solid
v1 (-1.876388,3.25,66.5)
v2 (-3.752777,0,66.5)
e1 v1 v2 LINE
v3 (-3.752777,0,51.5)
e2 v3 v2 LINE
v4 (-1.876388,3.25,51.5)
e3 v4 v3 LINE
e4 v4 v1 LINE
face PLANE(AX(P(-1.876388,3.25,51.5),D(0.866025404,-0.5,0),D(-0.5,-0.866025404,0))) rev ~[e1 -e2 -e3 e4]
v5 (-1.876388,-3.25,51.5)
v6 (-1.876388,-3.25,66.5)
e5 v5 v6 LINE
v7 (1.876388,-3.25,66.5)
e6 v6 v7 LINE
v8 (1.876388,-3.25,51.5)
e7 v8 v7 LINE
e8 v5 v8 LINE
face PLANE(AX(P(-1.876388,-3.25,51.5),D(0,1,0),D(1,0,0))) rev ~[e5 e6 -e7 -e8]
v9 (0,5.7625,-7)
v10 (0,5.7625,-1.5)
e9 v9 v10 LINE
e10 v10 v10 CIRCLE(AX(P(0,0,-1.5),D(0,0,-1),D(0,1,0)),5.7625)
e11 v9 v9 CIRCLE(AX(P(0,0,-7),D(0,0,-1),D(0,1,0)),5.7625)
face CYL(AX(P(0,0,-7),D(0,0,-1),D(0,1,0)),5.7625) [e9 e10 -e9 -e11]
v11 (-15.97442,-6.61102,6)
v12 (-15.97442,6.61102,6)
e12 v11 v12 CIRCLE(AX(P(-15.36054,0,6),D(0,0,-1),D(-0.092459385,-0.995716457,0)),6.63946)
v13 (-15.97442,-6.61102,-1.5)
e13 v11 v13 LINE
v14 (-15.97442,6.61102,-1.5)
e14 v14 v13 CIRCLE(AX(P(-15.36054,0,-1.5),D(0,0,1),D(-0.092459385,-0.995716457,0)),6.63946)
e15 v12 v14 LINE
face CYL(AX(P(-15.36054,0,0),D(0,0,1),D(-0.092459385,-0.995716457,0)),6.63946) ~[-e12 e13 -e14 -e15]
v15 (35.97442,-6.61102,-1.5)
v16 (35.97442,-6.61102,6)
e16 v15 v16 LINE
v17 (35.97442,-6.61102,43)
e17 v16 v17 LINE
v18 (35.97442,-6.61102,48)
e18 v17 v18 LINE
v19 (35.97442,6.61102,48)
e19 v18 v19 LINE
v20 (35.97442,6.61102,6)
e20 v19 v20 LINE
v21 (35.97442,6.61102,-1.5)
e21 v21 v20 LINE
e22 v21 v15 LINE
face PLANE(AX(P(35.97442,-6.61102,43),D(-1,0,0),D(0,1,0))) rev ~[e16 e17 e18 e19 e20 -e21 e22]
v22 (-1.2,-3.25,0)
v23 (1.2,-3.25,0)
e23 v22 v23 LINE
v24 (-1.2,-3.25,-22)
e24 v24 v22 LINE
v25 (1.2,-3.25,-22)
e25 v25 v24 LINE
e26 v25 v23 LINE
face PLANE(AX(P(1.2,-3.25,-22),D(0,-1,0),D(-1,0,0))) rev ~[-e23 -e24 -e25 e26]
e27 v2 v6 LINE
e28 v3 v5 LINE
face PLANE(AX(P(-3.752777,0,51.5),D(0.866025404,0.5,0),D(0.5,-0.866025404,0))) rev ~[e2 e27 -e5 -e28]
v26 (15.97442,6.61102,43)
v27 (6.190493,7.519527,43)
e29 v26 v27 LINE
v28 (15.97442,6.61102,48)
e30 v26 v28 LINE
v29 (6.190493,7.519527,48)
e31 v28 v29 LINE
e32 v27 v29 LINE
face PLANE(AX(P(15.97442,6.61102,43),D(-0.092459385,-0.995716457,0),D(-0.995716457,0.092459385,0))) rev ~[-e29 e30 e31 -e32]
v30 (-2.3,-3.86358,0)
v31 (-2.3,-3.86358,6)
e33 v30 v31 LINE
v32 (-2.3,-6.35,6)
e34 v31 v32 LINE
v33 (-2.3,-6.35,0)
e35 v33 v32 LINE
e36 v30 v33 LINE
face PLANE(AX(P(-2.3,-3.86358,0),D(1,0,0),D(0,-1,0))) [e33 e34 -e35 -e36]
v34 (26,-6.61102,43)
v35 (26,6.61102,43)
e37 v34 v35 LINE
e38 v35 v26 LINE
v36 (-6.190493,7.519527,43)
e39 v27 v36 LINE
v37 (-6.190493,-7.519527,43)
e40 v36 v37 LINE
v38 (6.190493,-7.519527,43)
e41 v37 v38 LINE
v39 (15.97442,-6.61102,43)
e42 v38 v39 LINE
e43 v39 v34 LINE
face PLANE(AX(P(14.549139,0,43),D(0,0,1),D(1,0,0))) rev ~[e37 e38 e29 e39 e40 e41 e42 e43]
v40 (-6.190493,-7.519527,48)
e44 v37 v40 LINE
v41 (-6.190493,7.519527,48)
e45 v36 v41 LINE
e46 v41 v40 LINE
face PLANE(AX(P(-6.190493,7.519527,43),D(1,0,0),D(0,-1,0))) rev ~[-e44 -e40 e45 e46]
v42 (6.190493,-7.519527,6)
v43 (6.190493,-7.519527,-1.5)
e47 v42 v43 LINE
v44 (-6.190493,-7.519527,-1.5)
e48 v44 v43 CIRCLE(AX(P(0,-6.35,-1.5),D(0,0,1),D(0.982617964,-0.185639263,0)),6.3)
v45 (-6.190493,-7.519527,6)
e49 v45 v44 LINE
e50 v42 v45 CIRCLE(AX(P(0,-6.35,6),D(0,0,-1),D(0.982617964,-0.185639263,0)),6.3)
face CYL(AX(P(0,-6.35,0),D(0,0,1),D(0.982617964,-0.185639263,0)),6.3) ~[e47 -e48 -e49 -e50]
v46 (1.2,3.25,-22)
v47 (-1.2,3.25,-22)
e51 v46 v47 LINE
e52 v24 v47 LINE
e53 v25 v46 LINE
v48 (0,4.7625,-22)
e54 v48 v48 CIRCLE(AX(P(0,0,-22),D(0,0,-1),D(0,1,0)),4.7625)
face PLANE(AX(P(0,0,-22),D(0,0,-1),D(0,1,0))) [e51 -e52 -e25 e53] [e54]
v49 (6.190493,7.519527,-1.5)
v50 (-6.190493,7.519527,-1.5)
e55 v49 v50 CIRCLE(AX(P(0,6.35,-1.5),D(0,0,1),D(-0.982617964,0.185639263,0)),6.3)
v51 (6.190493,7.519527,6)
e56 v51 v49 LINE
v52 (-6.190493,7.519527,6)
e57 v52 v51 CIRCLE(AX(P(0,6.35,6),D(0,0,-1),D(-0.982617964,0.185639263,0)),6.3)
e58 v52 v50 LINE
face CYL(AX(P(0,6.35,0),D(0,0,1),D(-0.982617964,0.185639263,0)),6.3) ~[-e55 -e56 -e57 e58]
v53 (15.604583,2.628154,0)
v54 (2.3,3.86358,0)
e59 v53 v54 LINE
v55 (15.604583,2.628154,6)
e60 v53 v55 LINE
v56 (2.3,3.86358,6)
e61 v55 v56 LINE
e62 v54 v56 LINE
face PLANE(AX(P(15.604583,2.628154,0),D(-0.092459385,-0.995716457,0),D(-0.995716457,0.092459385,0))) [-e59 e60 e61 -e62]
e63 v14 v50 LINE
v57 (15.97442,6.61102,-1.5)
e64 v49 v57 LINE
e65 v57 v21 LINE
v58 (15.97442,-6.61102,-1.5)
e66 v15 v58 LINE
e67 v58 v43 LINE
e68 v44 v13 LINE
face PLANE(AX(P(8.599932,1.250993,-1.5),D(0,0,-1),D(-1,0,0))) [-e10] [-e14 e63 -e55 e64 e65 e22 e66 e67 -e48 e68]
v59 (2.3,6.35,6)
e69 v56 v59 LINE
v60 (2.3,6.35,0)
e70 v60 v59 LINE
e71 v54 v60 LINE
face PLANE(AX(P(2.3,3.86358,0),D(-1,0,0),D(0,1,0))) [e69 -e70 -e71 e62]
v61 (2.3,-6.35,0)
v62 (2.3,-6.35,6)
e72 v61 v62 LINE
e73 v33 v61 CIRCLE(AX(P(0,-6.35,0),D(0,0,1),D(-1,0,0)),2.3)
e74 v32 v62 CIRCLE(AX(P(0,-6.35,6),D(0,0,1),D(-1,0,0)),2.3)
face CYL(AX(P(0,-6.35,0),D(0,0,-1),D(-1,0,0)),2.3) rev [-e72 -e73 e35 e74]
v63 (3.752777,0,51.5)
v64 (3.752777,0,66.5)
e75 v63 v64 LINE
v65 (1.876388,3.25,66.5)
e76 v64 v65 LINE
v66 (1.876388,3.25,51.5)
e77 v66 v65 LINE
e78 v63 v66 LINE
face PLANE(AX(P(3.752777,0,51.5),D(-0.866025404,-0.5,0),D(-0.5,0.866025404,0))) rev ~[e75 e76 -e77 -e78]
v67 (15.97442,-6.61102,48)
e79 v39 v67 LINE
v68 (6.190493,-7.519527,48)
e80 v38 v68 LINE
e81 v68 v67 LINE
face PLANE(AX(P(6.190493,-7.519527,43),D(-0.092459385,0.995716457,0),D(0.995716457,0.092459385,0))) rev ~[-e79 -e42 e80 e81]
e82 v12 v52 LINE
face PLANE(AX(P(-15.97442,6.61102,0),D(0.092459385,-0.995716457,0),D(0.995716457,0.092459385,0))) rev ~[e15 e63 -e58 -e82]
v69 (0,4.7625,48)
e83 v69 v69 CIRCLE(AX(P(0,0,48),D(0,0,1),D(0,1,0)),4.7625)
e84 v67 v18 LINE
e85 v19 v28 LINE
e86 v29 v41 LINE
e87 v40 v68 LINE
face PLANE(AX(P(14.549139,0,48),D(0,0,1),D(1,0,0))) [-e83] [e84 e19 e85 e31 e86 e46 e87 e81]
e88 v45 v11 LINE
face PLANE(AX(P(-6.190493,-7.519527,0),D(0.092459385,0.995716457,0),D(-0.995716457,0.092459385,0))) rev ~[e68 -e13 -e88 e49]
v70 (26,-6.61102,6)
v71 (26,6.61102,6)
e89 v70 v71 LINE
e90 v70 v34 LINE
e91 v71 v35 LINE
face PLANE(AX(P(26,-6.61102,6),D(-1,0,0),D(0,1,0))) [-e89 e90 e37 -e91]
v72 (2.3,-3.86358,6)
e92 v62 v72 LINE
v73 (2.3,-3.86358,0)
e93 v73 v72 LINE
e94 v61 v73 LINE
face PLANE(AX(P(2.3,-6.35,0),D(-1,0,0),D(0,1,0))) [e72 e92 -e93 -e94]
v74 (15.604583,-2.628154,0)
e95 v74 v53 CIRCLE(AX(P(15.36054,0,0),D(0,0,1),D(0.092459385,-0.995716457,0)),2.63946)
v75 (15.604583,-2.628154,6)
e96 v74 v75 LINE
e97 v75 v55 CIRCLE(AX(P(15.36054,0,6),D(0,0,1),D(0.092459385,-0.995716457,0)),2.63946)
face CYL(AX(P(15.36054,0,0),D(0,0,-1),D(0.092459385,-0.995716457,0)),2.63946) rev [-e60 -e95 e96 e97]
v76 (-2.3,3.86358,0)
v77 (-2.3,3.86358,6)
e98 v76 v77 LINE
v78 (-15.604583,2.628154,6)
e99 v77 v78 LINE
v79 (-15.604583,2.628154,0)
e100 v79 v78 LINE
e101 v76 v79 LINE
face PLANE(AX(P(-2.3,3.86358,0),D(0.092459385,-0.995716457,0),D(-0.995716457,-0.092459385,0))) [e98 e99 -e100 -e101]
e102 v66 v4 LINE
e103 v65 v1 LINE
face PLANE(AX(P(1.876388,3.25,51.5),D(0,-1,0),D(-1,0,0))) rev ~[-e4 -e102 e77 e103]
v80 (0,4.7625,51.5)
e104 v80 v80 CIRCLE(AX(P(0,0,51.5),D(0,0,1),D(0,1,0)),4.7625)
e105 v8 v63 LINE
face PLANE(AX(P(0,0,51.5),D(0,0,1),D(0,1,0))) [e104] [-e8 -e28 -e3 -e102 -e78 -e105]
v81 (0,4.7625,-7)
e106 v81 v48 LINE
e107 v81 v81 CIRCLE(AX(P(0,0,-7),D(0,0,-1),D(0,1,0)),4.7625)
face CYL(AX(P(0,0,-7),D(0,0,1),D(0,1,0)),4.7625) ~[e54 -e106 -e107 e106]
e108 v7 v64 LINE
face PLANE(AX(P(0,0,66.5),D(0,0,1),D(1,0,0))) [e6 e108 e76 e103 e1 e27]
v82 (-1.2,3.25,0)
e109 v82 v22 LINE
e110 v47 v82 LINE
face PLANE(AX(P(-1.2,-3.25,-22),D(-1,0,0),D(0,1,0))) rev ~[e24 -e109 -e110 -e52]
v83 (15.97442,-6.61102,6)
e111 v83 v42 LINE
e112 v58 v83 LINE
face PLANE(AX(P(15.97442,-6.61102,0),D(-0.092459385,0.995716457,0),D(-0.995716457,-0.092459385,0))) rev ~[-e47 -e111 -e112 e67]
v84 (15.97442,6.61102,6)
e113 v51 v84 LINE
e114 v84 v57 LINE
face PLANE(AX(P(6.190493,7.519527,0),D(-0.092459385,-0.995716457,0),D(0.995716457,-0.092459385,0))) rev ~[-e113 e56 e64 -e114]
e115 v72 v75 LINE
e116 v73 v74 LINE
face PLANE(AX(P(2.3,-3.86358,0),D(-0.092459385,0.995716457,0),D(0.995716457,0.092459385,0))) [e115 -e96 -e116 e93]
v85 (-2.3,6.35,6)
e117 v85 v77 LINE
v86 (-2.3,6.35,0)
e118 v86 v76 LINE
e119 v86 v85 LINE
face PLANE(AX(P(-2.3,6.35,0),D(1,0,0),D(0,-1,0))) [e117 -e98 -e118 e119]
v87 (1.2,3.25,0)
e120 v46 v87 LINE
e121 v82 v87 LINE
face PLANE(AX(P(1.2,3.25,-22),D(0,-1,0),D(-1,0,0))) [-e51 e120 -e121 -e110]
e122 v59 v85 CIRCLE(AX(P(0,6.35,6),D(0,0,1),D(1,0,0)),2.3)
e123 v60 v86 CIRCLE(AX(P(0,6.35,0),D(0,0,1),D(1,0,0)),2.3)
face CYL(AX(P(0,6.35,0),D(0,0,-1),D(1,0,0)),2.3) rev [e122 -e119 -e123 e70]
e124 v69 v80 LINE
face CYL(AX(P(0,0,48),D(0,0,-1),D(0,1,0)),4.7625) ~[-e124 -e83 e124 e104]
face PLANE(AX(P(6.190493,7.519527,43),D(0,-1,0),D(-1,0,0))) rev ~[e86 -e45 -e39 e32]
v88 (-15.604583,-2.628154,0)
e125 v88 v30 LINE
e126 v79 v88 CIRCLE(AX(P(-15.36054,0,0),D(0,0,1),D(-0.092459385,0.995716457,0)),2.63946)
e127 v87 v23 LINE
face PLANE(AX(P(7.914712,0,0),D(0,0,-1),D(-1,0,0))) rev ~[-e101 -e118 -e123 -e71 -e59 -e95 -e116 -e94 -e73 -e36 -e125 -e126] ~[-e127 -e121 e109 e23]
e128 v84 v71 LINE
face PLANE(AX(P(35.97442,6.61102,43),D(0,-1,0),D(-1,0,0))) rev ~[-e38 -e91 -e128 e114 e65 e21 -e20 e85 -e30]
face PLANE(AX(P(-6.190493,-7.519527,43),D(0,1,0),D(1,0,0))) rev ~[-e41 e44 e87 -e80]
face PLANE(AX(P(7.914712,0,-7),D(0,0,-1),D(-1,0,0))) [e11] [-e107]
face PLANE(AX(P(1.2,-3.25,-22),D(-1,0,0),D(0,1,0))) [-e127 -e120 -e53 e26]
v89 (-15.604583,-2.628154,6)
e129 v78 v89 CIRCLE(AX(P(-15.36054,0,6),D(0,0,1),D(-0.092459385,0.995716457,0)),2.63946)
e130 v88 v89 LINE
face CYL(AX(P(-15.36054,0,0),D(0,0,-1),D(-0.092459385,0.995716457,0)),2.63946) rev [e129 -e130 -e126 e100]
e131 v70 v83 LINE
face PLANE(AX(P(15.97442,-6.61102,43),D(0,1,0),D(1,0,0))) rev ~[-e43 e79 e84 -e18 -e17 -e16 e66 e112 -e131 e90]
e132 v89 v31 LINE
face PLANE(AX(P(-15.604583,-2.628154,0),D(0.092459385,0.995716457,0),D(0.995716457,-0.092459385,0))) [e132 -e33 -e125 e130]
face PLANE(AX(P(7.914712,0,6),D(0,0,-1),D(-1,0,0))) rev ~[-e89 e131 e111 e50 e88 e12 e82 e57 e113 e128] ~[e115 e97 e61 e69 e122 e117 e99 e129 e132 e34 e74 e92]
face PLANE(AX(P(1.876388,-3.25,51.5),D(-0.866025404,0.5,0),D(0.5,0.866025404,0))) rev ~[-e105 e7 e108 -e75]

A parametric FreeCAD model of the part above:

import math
import FreeCAD as App
import Part
import Sketcher
from FreeCAD import Vector
Q = App.Units.Quantity

doc = App.newDocument("Part")
body = doc.addObject("PartDesign::Body", "Body")

# Sketch on XY plane
sketch1 = doc.addObject("Sketcher::SketchObject", "Sketch")
body.addObject(sketch1)
sketch1.AttachmentSupport = (doc.XY_Plane, [""])
sketch1.MapMode = "FlatFace"
sketch1.addGeometry(Part.LineSegment(Vector(35.97442, 6.61102, 0), Vector(15.97442, 6.61102, 0)), False)
sketch1.addGeometry(Part.LineSegment(Vector(15.97442, 6.61102, 0), Vector(6.190493, 7.519527, 0)), False)
sketch1.addGeometry(Part.ArcOfCircle(Part.Circle(Vector(0, 6.35, 0), Vector(0, 0, 1), 6.3), math.radians(10.698405), math.radians(169.301595)), False)
sketch1.addGeometry(Part.LineSegment(Vector(-6.190493, 7.519527, 0), Vector(-15.97442, 6.61102, 0)), False)
sketch1.addGeometry(Part.ArcOfCircle(Part.Circle(Vector(-15.36054, 0, 0), Vector(0, 0, 1), 6.63946), math.radians(95.30511), math.radians(264.69489)), False)
sketch1.addGeometry(Part.LineSegment(Vector(-15.97442, -6.61102, 0), Vector(-6.190493, -7.519527, 0)), False)
sketch1.addGeometry(Part.ArcOfCircle(Part.Circle(Vector(0, -6.35, 0), Vector(0, 0, 1), 6.3), math.radians(-169.301595), math.radians(-10.698405)), False)
sketch1.addGeometry(Part.LineSegment(Vector(6.190493, -7.519527, 0), Vector(15.97442, -6.61102, 0)), False)
sketch1.addGeometry(Part.LineSegment(Vector(15.97442, -6.61102, 0), Vector(35.97442, -6.61102, 0)), False)
sketch1.addGeometry(Part.LineSegment(Vector(35.97442, -6.61102, 0), Vector(35.97442, 6.61102, 0)), False)
sketch1.addGeometry(Part.ArcOfCircle(Part.Circle(Vector(15.36054, 0, 0), Vector(0, 0, 1), 2.63946), math.radians(-84.69489), math.radians(84.69489)), False)
sketch1.addGeometry(Part.LineSegment(Vector(15.604583, -2.628154, 0), Vector(2.3, -3.86358, 0)), False)
sketch1.addGeometry(Part.LineSegment(Vector(2.3, -3.86358, 0), Vector(2.3, -6.35, 0)), False)
sketch1.addGeometry(Part.ArcOfCircle(Part.Circle(Vector(0, -6.35, 0), Vector(0, 0, 1), 2.3), math.radians(180), math.radians(360)), False)
sketch1.addGeometry(Part.LineSegment(Vector(-2.3, -6.35, 0), Vector(-2.3, -3.86358, 0)), False)
sketch1.addGeometry(Part.LineSegment(Vector(-2.3, -3.86358, 0), Vector(-15.604583, -2.628154, 0)), False)
sketch1.addGeometry(Part.ArcOfCircle(Part.Circle(Vector(-15.36054, 0, 0), Vector(0, 0, 1), 2.63946), math.radians(95.30511), math.radians(264.69489)), False)
sketch1.addGeometry(Part.LineSegment(Vector(-15.604583, 2.628154, 0), Vector(-2.3, 3.86358, 0)), False)
sketch1.addGeometry(Part.LineSegment(Vector(-2.3, 3.86358, 0), Vector(-2.3, 6.35, 0)), False)
sketch1.addGeometry(Part.ArcOfCircle(Part.Circle(Vector(0, 6.35, 0), Vector(0, 0, 1), 2.3), math.radians(0), math.radians(180)), False)
sketch1.addGeometry(Part.LineSegment(Vector(2.3, 6.35, 0), Vector(2.3, 3.86358, 0)), False)
sketch1.addGeometry(Part.LineSegment(Vector(2.3, 3.86358, 0), Vector(15.604583, 2.628154, 0)), False)
sketch1.addConstraint(Sketcher.Constraint("Coincident", 0, 2, 1, 1))
sketch1.addConstraint(Sketcher.Constraint("Coincident", 1, 2, 2, 1))
sketch1.addConstraint(Sketcher.Constraint("Coincident", 2, 2, 3, 1))
sketch1.addConstraint(Sketcher.Constraint("Coincident", 3, 2, 4, 1))
sketch1.addConstraint(Sketcher.Constraint("Coincident", 4, 2, 5, 1))
sketch1.addConstraint(Sketcher.Constraint("Coincident", 5, 2, 6, 1))
sketch1.addConstraint(Sketcher.Constraint("Coincident", 6, 2, 7, 1))
sketch1.addConstraint(Sketcher.Constraint("Coincident", 7, 2, 8, 1))
sketch1.addConstraint(Sketcher.Constraint("Coincident", 8, 2, 9, 1))
sketch1.addConstraint(Sketcher.Constraint("Coincident", 9, 2, 0, 1))
sketch1.addConstraint(Sketcher.Constraint("Coincident", 10, 1, 11, 1))
sketch1.addConstraint(Sketcher.Constraint("Coincident", 11, 2, 12, 1))
sketch1.addConstraint(Sketcher.Constraint("Coincident", 12, 2, 13, 2))
sketch1.addConstraint(Sketcher.Constraint("Coincident", 13, 1, 14, 1))
sketch1.addConstraint(Sketcher.Constraint("Coincident", 14, 2, 15, 1))
sketch1.addConstraint(Sketcher.Constraint("Coincident", 15, 2, 16, 2))
sketch1.addConstraint(Sketcher.Constraint("Coincident", 16, 1, 17, 1))
sketch1.addConstraint(Sketcher.Constraint("Coincident", 17, 2, 18, 1))
sketch1.addConstraint(Sketcher.Constraint("Coincident", 18, 2, 19, 2))
sketch1.addConstraint(Sketcher.Constraint("Coincident", 19, 1, 20, 1))
sketch1.addConstraint(Sketcher.Constraint("Coincident", 20, 2, 21, 1))
sketch1.addConstraint(Sketcher.Constraint("Coincident", 21, 2, 10, 2))
sketch1.addConstraint(Sketcher.Constraint("Horizontal", 0))
sketch1.addConstraint(Sketcher.Constraint("Horizontal", 8))
sketch1.addConstraint(Sketcher.Constraint("Vertical", 9))
sketch1.addConstraint(Sketcher.Constraint("Vertical", 12))
sketch1.addConstraint(Sketcher.Constraint("Vertical", 14))
sketch1.addConstraint(Sketcher.Constraint("Vertical", 18))
sketch1.addConstraint(Sketcher.Constraint("Vertical", 20))
sketch1.addConstraint(Sketcher.Constraint("Coincident", 13, 3, 6, 3))
sketch1.addConstraint(Sketcher.Constraint("Coincident", 16, 3, 4, 3))
sketch1.addConstraint(Sketcher.Constraint("Coincident", 19, 3, 2, 3))
sketch1.addConstraint(Sketcher.Constraint("PointOnObject", 2, 3, -2))
sketch1.addConstraint(Sketcher.Constraint("PointOnObject", 4, 3, -1))
sketch1.addConstraint(Sketcher.Constraint("PointOnObject", 6, 3, -2))
sketch1.addConstraint(Sketcher.Constraint("PointOnObject", 10, 3, -1))
sketch1.addConstraint(Sketcher.Constraint("Radius", 2, Q("6.3 mm")))
sketch1.addConstraint(Sketcher.Constraint("Radius", 6, Q("6.3 mm")))
sketch1.addConstraint(Sketcher.Constraint("Radius", 13, Q("2.3 mm")))
sketch1.addConstraint(Sketcher.Constraint("Radius", 19, Q("2.3 mm")))
sketch1.addConstraint(Sketcher.Constraint("DistanceX", 0, 2, 0, 1, Q("20 mm")))
sketch1.addConstraint(Sketcher.Constraint("DistanceX", 8, 1, 8, 2, Q("20 mm")))
sketch1.addConstraint(Sketcher.Constraint("DistanceY", 6, 3, 2, 3, Q("12.7 mm")))
sketch1.addConstraint(Sketcher.Constraint("DistanceY", -1, 1, 2, 3, Q("6.35 mm")))
sketch1.addConstraint(Sketcher.Constraint("DistanceY", 12, 2, -1, 1, Q("6.35 mm")))
sketch1.addConstraint(Sketcher.Constraint("DistanceY", 13, 1, -1, 1, Q("6.35 mm")))
sketch1.addConstraint(Sketcher.Constraint("DistanceY", -1, 1, 18, 2, Q("6.35 mm")))
sketch1.addConstraint(Sketcher.Constraint("DistanceY", -1, 1, 19, 1, Q("6.35 mm")))
sketch1.addConstraint(Sketcher.Constraint("Radius", 4, Q("6.63946 mm")))
sketch1.addConstraint(Sketcher.Constraint("Radius", 10, Q("2.63946 mm")))
sketch1.addConstraint(Sketcher.Constraint("Radius", 16, Q("2.63946 mm")))
sketch1.addConstraint(Sketcher.Constraint("DistanceY", 9, 1, 9, 2, Q("13.22204 mm")))
sketch1.addConstraint(Sketcher.Constraint("DistanceY", 12, 2, 12, 1, Q("2.48642 mm")))
sketch1.addConstraint(Sketcher.Constraint("DistanceY", 14, 1, 14, 2, Q("2.48642 mm")))
sketch1.addConstraint(Sketcher.Constraint("DistanceY", 18, 1, 18, 2, Q("2.48642 mm")))
sketch1.addConstraint(Sketcher.Constraint("DistanceY", 20, 2, 20, 1, Q("2.48642 mm")))
sketch1.addConstraint(Sketcher.Constraint("Distance", 11, Q("13.361819 mm")))
sketch1.addConstraint(Sketcher.Constraint("Distance", 15, Q("13.361819 mm")))
sketch1.addConstraint(Sketcher.Constraint("Distance", 17, Q("13.361819 mm")))
sketch1.addConstraint(Sketcher.Constraint("Distance", 21, Q("13.361819 mm")))
sketch1.addConstraint(Sketcher.Constraint("DistanceX", 4, 3, -1, 1, Q("15.36054 mm")))
sketch1.addConstraint(Sketcher.Constraint("DistanceX", -1, 1, 10, 3, Q("15.36054 mm")))
sketch1.addConstraint(Sketcher.Constraint("DistanceX", -1, 1, 0, 2, Q("15.97442 mm")))
sketch1.addConstraint(Sketcher.Constraint("DistanceY", -1, 1, 0, 2, Q("6.61102 mm")))
sketch1.addConstraint(Sketcher.Constraint("DistanceX", 3, 2, -1, 1, Q("15.97442 mm")))
sketch1.addConstraint(Sketcher.Constraint("DistanceX", 4, 2, -1, 1, Q("15.97442 mm")))
sketch1.addConstraint(Sketcher.Constraint("DistanceX", 6, 2, 10, 1, Q("9.414089 mm")))
sketch1.addConstraint(Sketcher.Constraint("DistanceX", 1, 2, 10, 1, Q("9.414089 mm")))
sketch1.addConstraint(Sketcher.Constraint("DistanceX", 15, 2, 5, 2, Q("9.414089 mm")))
sketch1.addConstraint(Sketcher.Constraint("Distance", 3, Q("9.826017 mm")))
pad1 = doc.addObject("PartDesign::Pad", "Pad")
body.addObject(pad1)
pad1.Profile = sketch1
pad1.Length = 6

# Sketch on XY plane
sketch2 = doc.addObject("Sketcher::SketchObject", "Sketch001")
body.addObject(sketch2)
sketch2.AttachmentSupport = (doc.XY_Plane, [""])
sketch2.MapMode = "FlatFace"
sketch2.addGeometry(Part.LineSegment(Vector(16, -7, 0), Vector(6, -8, 0)), False)
sketch2.addGeometry(Part.ArcOfCircle(Part.Circle(Vector(0, -6, 0), Vector(0, 0, 1), 6), math.radians(-169), math.radians(-11)), False)
sketch2.addGeometry(Part.LineSegment(Vector(-6, -8, 0), Vector(-16, -7, 0)), False)
sketch2.addGeometry(Part.ArcOfCircle(Part.Circle(Vector(-15, 0, 0), Vector(0, 0, 1), 7), math.radians(95), math.radians(265)), False)
sketch2.addGeometry(Part.LineSegment(Vector(-16, 7, 0), Vector(-6, 8, 0)), False)
sketch2.addGeometry(Part.ArcOfCircle(Part.Circle(Vector(0, 6, 0), Vector(0, 0, 1), 6), math.radians(11), math.radians(169)), False)
sketch2.addGeometry(Part.LineSegment(Vector(6, 8, 0), Vector(16, 7, 0)), False)
sketch2.addGeometry(Part.LineSegment(Vector(16, 7, 0), Vector(36, 7, 0)), False)
sketch2.addGeometry(Part.LineSegment(Vector(36, 7, 0), Vector(36, -7, 0)), False)
sketch2.addGeometry(Part.LineSegment(Vector(36, -7, 0), Vector(16, -7, 0)), False)
sketch2.addConstraint(Sketcher.Constraint("Coincident", 0, 2, 1, 2))
sketch2.addConstraint(Sketcher.Constraint("Coincident", 1, 1, 2, 1))
sketch2.addConstraint(Sketcher.Constraint("Tangent", 2, 2, 3, 2))
sketch2.addConstraint(Sketcher.Constraint("Tangent", 3, 1, 4, 1))
sketch2.addConstraint(Sketcher.Constraint("Coincident", 4, 2, 5, 2))
sketch2.addConstraint(Sketcher.Constraint("Coincident", 5, 1, 6, 1))
sketch2.addConstraint(Sketcher.Constraint("Coincident", 6, 2, 7, 1))
sketch2.addConstraint(Sketcher.Constraint("Coincident", 7, 2, 8, 1))
sketch2.addConstraint(Sketcher.Constraint("Coincident", 8, 2, 9, 1))
sketch2.addConstraint(Sketcher.Constraint("Coincident", 9, 2, 0, 1))
sketch2.addConstraint(Sketcher.Constraint("Horizontal", 7))
sketch2.addConstraint(Sketcher.Constraint("Vertical", 8))
sketch2.addConstraint(Sketcher.Constraint("Horizontal", 9))
sketch2.addConstraint(Sketcher.Constraint("Equal", 1, 5))
sketch2.addConstraint(Sketcher.Constraint("Symmetric", 1, 3, 5, 3, -1, 1))
sketch2.addConstraint(Sketcher.Constraint("Symmetric", 2, 2, 6, 2, -1, 1))
sketch2.addConstraint(Sketcher.Constraint("Symmetric", 3, 1, 9, 2, -1, 1))
sketch2.addConstraint(Sketcher.Constraint("Symmetric", 0, 2, 1, 1, -2))
sketch2.addConstraint(Sketcher.Constraint("Symmetric", 3, 1, 6, 2, -2))
sketch2.addConstraint(Sketcher.Constraint("Parallel", 2, 6))
sketch2.addConstraint(Sketcher.Constraint("Radius", 1, Q("6.3 mm")))
sketch2.addConstraint(Sketcher.Constraint("DistanceX", 7, 1, 7, 2, Q("20 mm")))
sketch2.addConstraint(Sketcher.Constraint("DistanceY", 1, 3, 5, 3, Q("12.7 mm")))
sketch2.addConstraint(Sketcher.Constraint("Radius", 3, Q("6.63946 mm")))
sketch2.addConstraint(Sketcher.Constraint("DistanceY", 8, 2, 8, 1, Q("13.22204 mm")))
sketch2.addConstraint(Sketcher.Constraint("DistanceX", 3, 3, -1, 1, Q("15.36054 mm")))
pad2 = doc.addObject("PartDesign::Pad", "Pad001")
body.addObject(pad2)
pad2.Profile = sketch2
pad2.Length = 7
pad2.Reversed = True

# Sketch on XY plane
sketch3 = doc.addObject("Sketcher::SketchObject", "Sketch002")
body.addObject(sketch3)
sketch3.AttachmentSupport = (doc.XY_Plane, [""])
sketch3.MapMode = "FlatFace"
sketch3.AttachmentOffset = App.Placement(Vector(0, 0, -7), App.Rotation())
sketch3.addGeometry(Part.Circle(Vector(0, 0, 0), Vector(0, 0, 1), 4.8), False)
sketch3.addConstraint(Sketcher.Constraint("Coincident", 0, 3, -1, 1))
sketch3.addConstraint(Sketcher.Constraint("Diameter", 0, Q("9.525 mm")))
pad3 = doc.addObject("PartDesign::Pad", "Pad002")
body.addObject(pad3)
pad3.Profile = sketch3
pad3.Length = 15
pad3.Reversed = True

# Sketch on XY plane
sketch4 = doc.addObject("Sketcher::SketchObject", "Sketch003")
body.addObject(sketch4)
sketch4.AttachmentSupport = (doc.XY_Plane, [""])
sketch4.MapMode = "FlatFace"
sketch4.AttachmentOffset = App.Placement(Vector(0, 0, -22), App.Rotation())
sketch4.addGeometry(Part.LineSegment(Vector(1.2, 3.2, 0), Vector(1.2, -3.2, 0)), False)
sketch4.addGeometry(Part.LineSegment(Vector(1.2, -3.2, 0), Vector(-1.2, -3.2, 0)), False)
sketch4.addGeometry(Part.LineSegment(Vector(-1.2, -3.2, 0), Vector(-1.2, 3.2, 0)), False)
sketch4.addGeometry(Part.LineSegment(Vector(-1.2, 3.2, 0), Vector(1.2, 3.2, 0)), False)
sketch4.addConstraint(Sketcher.Constraint("Coincident", 0, 2, 1, 1))
sketch4.addConstraint(Sketcher.Constraint("Coincident", 1, 2, 2, 1))
sketch4.addConstraint(Sketcher.Constraint("Coincident", 2, 2, 3, 1))
sketch4.addConstraint(Sketcher.Constraint("Coincident", 3, 2, 0, 1))
sketch4.addConstraint(Sketcher.Constraint("Vertical", 0))
sketch4.addConstraint(Sketcher.Constraint("Horizontal", 1))
sketch4.addConstraint(Sketcher.Constraint("Vertical", 2))
sketch4.addConstraint(Sketcher.Constraint("Horizontal", 3))
sketch4.addConstraint(Sketcher.Constraint("Symmetric", 0, 2, 2, 2, -1, 1))
sketch4.addConstraint(Sketcher.Constraint("DistanceX", 1, 2, 1, 1, Q("2.4 mm")))
sketch4.addConstraint(Sketcher.Constraint("DistanceY", 0, 2, 0, 1, Q("6.5 mm")))
pocket1 = doc.addObject("PartDesign::Pocket", "Pocket")
body.addObject(pocket1)
pocket1.Profile = sketch4
pocket1.Type = "UpToFirst"
pocket1.Reversed = True

# Sketch on XY plane
sketch5 = doc.addObject("Sketcher::SketchObject", "Sketch004")
body.addObject(sketch5)
sketch5.AttachmentSupport = (doc.XY_Plane, [""])
sketch5.MapMode = "FlatFace"
sketch5.AttachmentOffset = App.Placement(Vector(0, 0, 6), App.Rotation())
sketch5.addGeometry(Part.LineSegment(Vector(26, 7, 0), Vector(26, -7, 0)), False)
sketch5.addGeometry(Part.LineSegment(Vector(26, -7, 0), Vector(36, -7, 0)), False)
sketch5.addGeometry(Part.LineSegment(Vector(36, -7, 0), Vector(36, 7, 0)), False)
sketch5.addGeometry(Part.LineSegment(Vector(36, 7, 0), Vector(26, 7, 0)), False)
sketch5.addConstraint(Sketcher.Constraint("Coincident", 0, 2, 1, 1))
sketch5.addConstraint(Sketcher.Constraint("Coincident", 1, 2, 2, 1))
sketch5.addConstraint(Sketcher.Constraint("Coincident", 2, 2, 3, 1))
sketch5.addConstraint(Sketcher.Constraint("Coincident", 3, 2, 0, 1))
sketch5.addConstraint(Sketcher.Constraint("Vertical", 0))
sketch5.addConstraint(Sketcher.Constraint("Horizontal", 1))
sketch5.addConstraint(Sketcher.Constraint("Vertical", 2))
sketch5.addConstraint(Sketcher.Constraint("Horizontal", 3))
sketch5.addConstraint(Sketcher.Constraint("DistanceX", -1, 1, 0, 2, Q("26 mm")))
sketch5.addConstraint(Sketcher.Constraint("DistanceX", 1, 1, 1, 2, Q("9.97442 mm")))
sketch5.addConstraint(Sketcher.Constraint("DistanceY", 0, 2, 0, 1, Q("13.22204 mm")))
sketch5.addConstraint(Sketcher.Constraint("DistanceY", 0, 2, -1, 1, Q("6.61102 mm")))
pad4 = doc.addObject("PartDesign::Pad", "Pad003")
body.addObject(pad4)
pad4.Profile = sketch5
pad4.Length = 37

# Sketch on XY plane
sketch6 = doc.addObject("Sketcher::SketchObject", "Sketch005")
body.addObject(sketch6)
sketch6.AttachmentSupport = (doc.XY_Plane, [""])
sketch6.MapMode = "FlatFace"
sketch6.AttachmentOffset = App.Placement(Vector(0, 0, 43), App.Rotation())
sketch6.addGeometry(Part.LineSegment(Vector(36, 7, 0), Vector(16, 7, 0)), False)
sketch6.addGeometry(Part.LineSegment(Vector(16, 7, 0), Vector(6, 8, 0)), False)
sketch6.addGeometry(Part.LineSegment(Vector(6, 8, 0), Vector(-6, 8, 0)), False)
sketch6.addGeometry(Part.LineSegment(Vector(-6, 8, 0), Vector(-6, -8, 0)), False)
sketch6.addGeometry(Part.LineSegment(Vector(-6, -8, 0), Vector(6, -8, 0)), False)
sketch6.addGeometry(Part.LineSegment(Vector(6, -8, 0), Vector(16, -7, 0)), False)
sketch6.addGeometry(Part.LineSegment(Vector(16, -7, 0), Vector(36, -7, 0)), False)
sketch6.addGeometry(Part.LineSegment(Vector(36, -7, 0), Vector(36, 7, 0)), False)
sketch6.addConstraint(Sketcher.Constraint("Coincident", 0, 2, 1, 1))
sketch6.addConstraint(Sketcher.Constraint("Coincident", 1, 2, 2, 1))
sketch6.addConstraint(Sketcher.Constraint("Coincident", 2, 2, 3, 1))
sketch6.addConstraint(Sketcher.Constraint("Coincident", 3, 2, 4, 1))
sketch6.addConstraint(Sketcher.Constraint("Coincident", 4, 2, 5, 1))
sketch6.addConstraint(Sketcher.Constraint("Coincident", 5, 2, 6, 1))
sketch6.addConstraint(Sketcher.Constraint("Coincident", 6, 2, 7, 1))
sketch6.addConstraint(Sketcher.Constraint("Coincident", 7, 2, 0, 1))
sketch6.addConstraint(Sketcher.Constraint("Horizontal", 0))
sketch6.addConstraint(Sketcher.Constraint("Horizontal", 2))
sketch6.addConstraint(Sketcher.Constraint("Vertical", 3))
sketch6.addConstraint(Sketcher.Constraint("Horizontal", 4))
sketch6.addConstraint(Sketcher.Constraint("Horizontal", 6))
sketch6.addConstraint(Sketcher.Constraint("Vertical", 7))
sketch6.addConstraint(Sketcher.Constraint("Symmetric", 1, 2, 3, 2, -1, 1))
sketch6.addConstraint(Sketcher.Constraint("Symmetric", 0, 2, 5, 2, -1))
sketch6.addConstraint(Sketcher.Constraint("Vertical", 1, 2, 4, 2))
sketch6.addConstraint(Sketcher.Constraint("DistanceX", 0, 2, 0, 1, Q("20 mm")))
sketch6.addConstraint(Sketcher.Constraint("DistanceY", 7, 1, 7, 2, Q("13.22204 mm")))
sketch6.addConstraint(Sketcher.Constraint("DistanceX", 2, 2, 2, 1, Q("12.380986 mm")))
sketch6.addConstraint(Sketcher.Constraint("DistanceY", 3, 2, 3, 1, Q("15.039055 mm")))
sketch6.addConstraint(Sketcher.Constraint("DistanceX", -1, 1, 0, 2, Q("15.97442 mm")))
pad5 = doc.addObject("PartDesign::Pad", "Pad004")
body.addObject(pad5)
pad5.Profile = sketch6
pad5.Length = 5

# Sketch on XY plane
sketch7 = doc.addObject("Sketcher::SketchObject", "Sketch006")
body.addObject(sketch7)
sketch7.AttachmentSupport = (doc.XY_Plane, [""])
sketch7.MapMode = "FlatFace"
sketch7.AttachmentOffset = App.Placement(Vector(0, 0, 48), App.Rotation())
sketch7.addGeometry(Part.Circle(Vector(0, 0, 0), Vector(0, 0, 1), 4.8), False)
sketch7.addConstraint(Sketcher.Constraint("Coincident", 0, 3, -1, 1))
sketch7.addConstraint(Sketcher.Constraint("Diameter", 0, Q("9.525 mm")))
pad6 = doc.addObject("PartDesign::Pad", "Pad005")
body.addObject(pad6)
pad6.Profile = sketch7
pad6.Length = 3.5

# Sketch on XY plane
sketch8 = doc.addObject("Sketcher::SketchObject", "Sketch007")
body.addObject(sketch8)
sketch8.AttachmentSupport = (doc.XY_Plane, [""])
sketch8.MapMode = "FlatFace"
sketch8.AttachmentOffset = App.Placement(Vector(0, 0, 51.5), App.Rotation())
sketch8.addGeometry(Part.LineSegment(Vector(3.8, 0, 0), Vector(1.9, 3.2, 0)), False)
sketch8.addGeometry(Part.LineSegment(Vector(1.9, 3.2, 0), Vector(-1.9, 3.2, 0)), False)
sketch8.addGeometry(Part.LineSegment(Vector(-1.9, 3.2, 0), Vector(-3.8, 0, 0)), False)
sketch8.addGeometry(Part.LineSegment(Vector(-3.8, 0, 0), Vector(-1.9, -3.2, 0)), False)
sketch8.addGeometry(Part.LineSegment(Vector(-1.9, -3.2, 0), Vector(1.9, -3.2, 0)), False)
sketch8.addGeometry(Part.LineSegment(Vector(1.9, -3.2, 0), Vector(3.8, 0, 0)), False)
sketch8.addConstraint(Sketcher.Constraint("Coincident", 0, 2, 1, 1))
sketch8.addConstraint(Sketcher.Constraint("Coincident", 1, 2, 2, 1))
sketch8.addConstraint(Sketcher.Constraint("Coincident", 2, 2, 3, 1))
sketch8.addConstraint(Sketcher.Constraint("Coincident", 3, 2, 4, 1))
sketch8.addConstraint(Sketcher.Constraint("Coincident", 4, 2, 5, 1))
sketch8.addConstraint(Sketcher.Constraint("Coincident", 5, 2, 0, 1))
sketch8.addConstraint(Sketcher.Constraint("Horizontal", 1))
sketch8.addConstraint(Sketcher.Constraint("Horizontal", 4))
sketch8.addConstraint(Sketcher.Constraint("Symmetric", 0, 2, 3, 2, -1, 1))
sketch8.addConstraint(Sketcher.Constraint("Symmetric", 2, 2, 5, 2, -1, 1))
sketch8.addConstraint(Sketcher.Constraint("PointOnObject", 2, 2, -1))
sketch8.addConstraint(Sketcher.Constraint("Parallel", 2, 5))
sketch8.addConstraint(Sketcher.Constraint("Vertical", 1, 2, 3, 2))
sketch8.addConstraint(Sketcher.Constraint("Angle", 0, Q("120 deg")))
sketch8.addConstraint(Sketcher.Constraint("DistanceY", 3, 2, 1, 2, Q("6.5 mm")))
sketch8.addConstraint(Sketcher.Constraint("DistanceX", 1, 2, 1, 1, Q("3.752777 mm")))
pad7 = doc.addObject("PartDesign::Pad", "Pad006")
body.addObject(pad7)
pad7.Profile = sketch8
pad7.Length = 15

# Sketch on XY plane
sketch9 = doc.addObject("Sketcher::SketchObject", "Sketch008")
body.addObject(sketch9)
sketch9.AttachmentSupport = (doc.XY_Plane, [""])
sketch9.MapMode = "FlatFace"
sketch9.AttachmentOffset = App.Placement(Vector(0, 0, -7), App.Rotation())
sketch9.addGeometry(Part.LineSegment(Vector(51, 35, 0), Vector(51, -33, 0)), False)
sketch9.addGeometry(Part.LineSegment(Vector(51, -33, 0), Vector(-33, -33, 0)), False)
sketch9.addGeometry(Part.LineSegment(Vector(-33, -33, 0), Vector(-33, 35, 0)), False)
sketch9.addGeometry(Part.LineSegment(Vector(-33, 35, 0), Vector(51, 35, 0)), False)
sketch9.addGeometry(Part.Circle(Vector(0, 0, 0), Vector(0, 0, 1), 6), False)
sketch9.addConstraint(Sketcher.Constraint("Coincident", 0, 2, 1, 1))
sketch9.addConstraint(Sketcher.Constraint("Coincident", 1, 2, 2, 1))
sketch9.addConstraint(Sketcher.Constraint("Coincident", 2, 2, 3, 1))
sketch9.addConstraint(Sketcher.Constraint("Coincident", 3, 2, 0, 1))
sketch9.addConstraint(Sketcher.Constraint("Vertical", 0))
sketch9.addConstraint(Sketcher.Constraint("Horizontal", 1))
sketch9.addConstraint(Sketcher.Constraint("Vertical", 2))
sketch9.addConstraint(Sketcher.Constraint("Horizontal", 3))
sketch9.addConstraint(Sketcher.Constraint("Coincident", 4, 3, -1, 1))
sketch9.addConstraint(Sketcher.Constraint("Diameter", 4, Q("11.525 mm")))
sketch9.addConstraint(Sketcher.Constraint("DistanceX", 1, 2, 1, 1, Q("83.8772 mm")))
sketch9.addConstraint(Sketcher.Constraint("DistanceY", 0, 2, 0, 1, Q("67.677452 mm")))
sketch9.addConstraint(Sketcher.Constraint("DistanceY", -1, 1, 2, 2, Q("35.089719 mm")))
sketch9.addConstraint(Sketcher.Constraint("DistanceX", -1, 1, 0, 2, Q("50.538533 mm")))
pocket2 = doc.addObject("PartDesign::Pocket", "Pocket001")
body.addObject(pocket2)
pocket2.Profile = sketch9
pocket2.Length = 5.5
pocket2.Reversed = True

doc.recompute()
